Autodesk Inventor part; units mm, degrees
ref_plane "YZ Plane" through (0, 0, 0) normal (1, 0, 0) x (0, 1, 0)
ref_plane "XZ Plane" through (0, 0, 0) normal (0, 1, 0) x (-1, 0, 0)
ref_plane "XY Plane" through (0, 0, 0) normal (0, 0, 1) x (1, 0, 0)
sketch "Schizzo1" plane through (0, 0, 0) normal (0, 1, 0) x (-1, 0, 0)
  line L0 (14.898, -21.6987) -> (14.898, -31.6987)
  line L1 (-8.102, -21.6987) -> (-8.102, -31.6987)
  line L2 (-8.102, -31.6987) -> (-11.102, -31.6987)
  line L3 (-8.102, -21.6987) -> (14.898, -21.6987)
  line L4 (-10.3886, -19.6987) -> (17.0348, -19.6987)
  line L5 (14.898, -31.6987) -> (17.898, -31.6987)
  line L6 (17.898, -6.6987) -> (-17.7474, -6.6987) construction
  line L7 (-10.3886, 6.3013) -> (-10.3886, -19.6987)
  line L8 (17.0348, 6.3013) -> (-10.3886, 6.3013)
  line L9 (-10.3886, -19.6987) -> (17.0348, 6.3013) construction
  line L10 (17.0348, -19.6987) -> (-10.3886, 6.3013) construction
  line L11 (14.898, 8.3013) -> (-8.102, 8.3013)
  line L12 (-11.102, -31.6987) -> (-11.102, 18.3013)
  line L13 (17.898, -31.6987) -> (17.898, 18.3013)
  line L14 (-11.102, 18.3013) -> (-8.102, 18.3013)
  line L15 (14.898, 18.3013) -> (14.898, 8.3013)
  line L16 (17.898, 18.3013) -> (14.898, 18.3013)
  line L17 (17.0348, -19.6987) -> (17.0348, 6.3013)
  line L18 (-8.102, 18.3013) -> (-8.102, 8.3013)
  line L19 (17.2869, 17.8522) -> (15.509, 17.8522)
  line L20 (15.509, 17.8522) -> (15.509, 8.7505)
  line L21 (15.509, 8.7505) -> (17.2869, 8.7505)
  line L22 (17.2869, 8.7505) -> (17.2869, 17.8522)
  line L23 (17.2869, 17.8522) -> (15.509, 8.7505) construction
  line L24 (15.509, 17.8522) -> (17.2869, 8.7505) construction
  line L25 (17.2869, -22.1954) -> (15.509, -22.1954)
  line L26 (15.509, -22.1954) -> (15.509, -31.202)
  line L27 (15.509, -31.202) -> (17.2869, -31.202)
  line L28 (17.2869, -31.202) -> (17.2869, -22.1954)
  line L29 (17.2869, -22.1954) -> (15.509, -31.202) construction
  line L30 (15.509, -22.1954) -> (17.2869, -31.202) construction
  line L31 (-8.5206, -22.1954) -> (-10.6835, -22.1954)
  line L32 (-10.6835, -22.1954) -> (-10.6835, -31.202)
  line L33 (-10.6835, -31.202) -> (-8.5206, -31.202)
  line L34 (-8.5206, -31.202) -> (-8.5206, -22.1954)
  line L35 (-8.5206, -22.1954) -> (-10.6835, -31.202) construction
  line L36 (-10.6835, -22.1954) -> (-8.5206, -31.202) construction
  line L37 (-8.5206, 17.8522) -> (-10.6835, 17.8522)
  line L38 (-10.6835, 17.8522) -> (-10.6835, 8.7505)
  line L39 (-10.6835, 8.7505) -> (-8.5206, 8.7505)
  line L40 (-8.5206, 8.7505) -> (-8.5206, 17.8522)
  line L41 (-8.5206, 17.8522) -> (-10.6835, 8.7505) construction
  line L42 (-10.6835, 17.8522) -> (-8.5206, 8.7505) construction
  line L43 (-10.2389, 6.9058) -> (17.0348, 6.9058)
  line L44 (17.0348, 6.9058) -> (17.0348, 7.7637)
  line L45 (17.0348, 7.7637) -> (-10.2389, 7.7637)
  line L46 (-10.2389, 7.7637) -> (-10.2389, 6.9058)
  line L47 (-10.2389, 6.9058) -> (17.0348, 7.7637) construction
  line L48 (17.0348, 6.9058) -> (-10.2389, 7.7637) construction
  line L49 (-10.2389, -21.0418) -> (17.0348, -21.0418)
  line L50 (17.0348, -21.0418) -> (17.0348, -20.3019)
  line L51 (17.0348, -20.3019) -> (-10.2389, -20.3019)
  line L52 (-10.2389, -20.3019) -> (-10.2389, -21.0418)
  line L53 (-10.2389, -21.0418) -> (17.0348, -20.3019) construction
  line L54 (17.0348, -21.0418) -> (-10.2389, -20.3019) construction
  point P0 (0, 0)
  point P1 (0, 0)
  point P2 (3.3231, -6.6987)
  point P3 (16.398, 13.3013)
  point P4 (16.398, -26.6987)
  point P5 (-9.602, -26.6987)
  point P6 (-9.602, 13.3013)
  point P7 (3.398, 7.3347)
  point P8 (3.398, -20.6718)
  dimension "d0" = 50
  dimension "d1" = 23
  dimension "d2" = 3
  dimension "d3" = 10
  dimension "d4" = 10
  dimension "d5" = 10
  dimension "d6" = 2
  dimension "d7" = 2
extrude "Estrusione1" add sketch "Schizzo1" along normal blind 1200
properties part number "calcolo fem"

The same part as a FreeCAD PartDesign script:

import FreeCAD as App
import Part
import Sketcher
from FreeCAD import Vector


def add_polygon(sketch, points):
    """Adds a closed chain of lines whose ends are joined by coincident constraints."""
    first, n = sketch.GeometryCount, len(points)
    for a, b in zip(points, points[1:] + points[:1]):
        sketch.addGeometry(Part.LineSegment(App.Vector(*a, 0), App.Vector(*b, 0)), False)
    for i in range(n):
        sketch.addConstraint(Sketcher.Constraint("Coincident", first + i, 2, first + (i + 1) % n, 1))

doc = App.newDocument("Part")
body = doc.addObject("PartDesign::Body", "Body")

sketch1 = body.newObject("Sketcher::SketchObject", "Sketch")
sketch1.AttachmentSupport = (doc.getObject("XZ_Plane"), [""])
sketch1.MapMode = "FlatFace"
add_polygon(sketch1, [(8.1, -21.7), (-14.9, -21.7), (-14.9, -31.7), (-17.9, -31.7), (-17.9, 18.3), (-14.9, 18.3), (-14.9, 8.3), (8.1, 8.3), (8.1, 18.3), (11.1, 18.3), (11.1, -31.7), (8.1, -31.7)])
add_polygon(sketch1, [(10.7, -22.2), (8.5, -22.2), (8.5, -31.2), (10.7, -31.2)])
add_polygon(sketch1, [(-17, -21), (10.2, -21), (10.2, -20.3), (-17, -20.3)])
add_polygon(sketch1, [(-15.5, -22.2), (-17.3, -22.2), (-17.3, -31.2), (-15.5, -31.2)])
add_polygon(sketch1, [(-17, -19.7), (10.4, -19.7), (10.4, 6.3), (-17, 6.3)])
add_polygon(sketch1, [(10.7, 17.9), (8.5, 17.9), (8.5, 8.8), (10.7, 8.8)])
add_polygon(sketch1, [(-17, 6.9), (10.2, 6.9), (10.2, 7.8), (-17, 7.8)])
add_polygon(sketch1, [(-15.5, 17.9), (-17.3, 17.9), (-17.3, 8.8), (-15.5, 8.8)])
sketch1.addConstraint(Sketcher.Constraint("Horizontal", 0))
sketch1.addConstraint(Sketcher.Constraint("Vertical", 1))
sketch1.addConstraint(Sketcher.Constraint("Horizontal", 2))
sketch1.addConstraint(Sketcher.Constraint("Vertical", 3))
sketch1.addConstraint(Sketcher.Constraint("Horizontal", 4))
sketch1.addConstraint(Sketcher.Constraint("Vertical", 5))
sketch1.addConstraint(Sketcher.Constraint("Horizontal", 6))
sketch1.addConstraint(Sketcher.Constraint("Vertical", 7))
sketch1.addConstraint(Sketcher.Constraint("Horizontal", 8))
sketch1.addConstraint(Sketcher.Constraint("Vertical", 9))
sketch1.addConstraint(Sketcher.Constraint("Horizontal", 10))
sketch1.addConstraint(Sketcher.Constraint("Vertical", 11))
sketch1.addConstraint(Sketcher.Constraint("Horizontal", 12))
sketch1.addConstraint(Sketcher.Constraint("Vertical", 13))
sketch1.addConstraint(Sketcher.Constraint("Horizontal", 14))
sketch1.addConstraint(Sketcher.Constraint("Vertical", 15))
sketch1.addConstraint(Sketcher.Constraint("Horizontal", 16))
sketch1.addConstraint(Sketcher.Constraint("Vertical", 17))
sketch1.addConstraint(Sketcher.Constraint("Horizontal", 18))
sketch1.addConstraint(Sketcher.Constraint("Vertical", 19))
sketch1.addConstraint(Sketcher.Constraint("Horizontal", 20))
sketch1.addConstraint(Sketcher.Constraint("Vertical", 21))
sketch1.addConstraint(Sketcher.Constraint("Horizontal", 22))
sketch1.addConstraint(Sketcher.Constraint("Vertical", 23))
sketch1.addConstraint(Sketcher.Constraint("Horizontal", 24))
sketch1.addConstraint(Sketcher.Constraint("Vertical", 25))
sketch1.addConstraint(Sketcher.Constraint("Horizontal", 26))
sketch1.addConstraint(Sketcher.Constraint("Vertical", 27))
sketch1.addConstraint(Sketcher.Constraint("Horizontal", 28))
sketch1.addConstraint(Sketcher.Constraint("Vertical", 29))
sketch1.addConstraint(Sketcher.Constraint("Horizontal", 30))
sketch1.addConstraint(Sketcher.Constraint("Vertical", 31))
sketch1.addConstraint(Sketcher.Constraint("Horizontal", 32))
sketch1.addConstraint(Sketcher.Constraint("Vertical", 33))
sketch1.addConstraint(Sketcher.Constraint("Horizontal", 34))
sketch1.addConstraint(Sketcher.Constraint("Vertical", 35))
sketch1.addConstraint(Sketcher.Constraint("Horizontal", 36))
sketch1.addConstraint(Sketcher.Constraint("Vertical", 37))
sketch1.addConstraint(Sketcher.Constraint("Horizontal", 38))
sketch1.addConstraint(Sketcher.Constraint("Vertical", 39))
sketch1.addConstraint(Sketcher.Constraint("Horizontal", 4, 2, 7, 2))
sketch1.addConstraint(Sketcher.Constraint("Horizontal", 2, 2, 9, 2))
sketch1.addConstraint(Sketcher.Constraint("Horizontal", 15, 2, 20, 2))
sketch1.addConstraint(Sketcher.Constraint("Horizontal", 14, 2, 21, 2))
sketch1.addConstraint(Sketcher.Constraint("Horizontal", 31, 2, 36, 2))
sketch1.addConstraint(Sketcher.Constraint("Horizontal", 30, 2, 37, 2))
sketch1.addConstraint(Sketcher.Constraint("Vertical", 1, 2, 4, 2))
sketch1.addConstraint(Sketcher.Constraint("Vertical", 7, 2, 10, 2))
sketch1.addConstraint(Sketcher.Constraint("Vertical", 19, 2, 26, 2))
sketch1.addConstraint(Sketcher.Constraint("Vertical", 13, 2, 28, 2))
sketch1.addConstraint(Sketcher.Constraint("Vertical", 15, 2, 30, 2))
sketch1.addConstraint(Sketcher.Constraint("Vertical", 17, 2, 32, 2))
sketch1.addConstraint(Sketcher.Constraint("Vertical", 27, 2, 34, 2))
sketch1.addConstraint(Sketcher.Constraint("Vertical", 21, 2, 36, 2))
sketch1.addConstraint(Sketcher.Constraint("Vertical", 23, 2, 38, 2))
sketch1.addConstraint(Sketcher.Constraint("Equal", 4, 8))
sketch1.addConstraint(Sketcher.Constraint("Equal", 1, 5))
sketch1.addConstraint(Sketcher.Constraint("DistanceX", 0, 2, 0, 1, 23.0))
sketch1.addConstraint(Sketcher.Constraint("DistanceX", 2, 2, 2, 1, 3.0))
sketch1.addConstraint(Sketcher.Constraint("DistanceY", 1, 2, 1, 1, 10.0))
sketch1.addConstraint(Sketcher.Constraint("DistanceY", 3, 1, 3, 2, 50.0))
sketch1.addConstraint(Sketcher.Constraint("DistanceY", 11, 2, 24, 2, 2.0))
sketch1.addConstraint(Sketcher.Constraint("DistanceY", 25, 2, 6, 2, 2.0))
sketch1.addConstraint(Sketcher.Constraint("DistanceY", 17, 1, 17, 2, 0.74))
sketch1.addConstraint(Sketcher.Constraint("DistanceY", 14, 2, 17, 2, 10.9))
sketch1.addConstraint(Sketcher.Constraint("DistanceX", 12, 2, 12, 1, 2.163))
sketch1.addConstraint(Sketcher.Constraint("DistanceX", 20, 2, 20, 1, 1.778))
sketch1.addConstraint(Sketcher.Constraint("DistanceY", 33, 1, 33, 2, 0.858))
sketch1.addConstraint(Sketcher.Constraint("DistanceX", 16, 1, 16, 2, 27.2737))
sketch1.addConstraint(Sketcher.Constraint("DistanceX", 24, 1, 24, 2, 27.4234))
sketch1.addConstraint(Sketcher.Constraint("DistanceY", 13, 2, 13, 1, 9.0066))
sketch1.addConstraint(Sketcher.Constraint("DistanceY", 29, 2, 29, 1, 9.1017))
sketch1.addConstraint(Sketcher.Constraint("DistanceX", 0, 2, -1, 1, 14.898))
sketch1.addConstraint(Sketcher.Constraint("DistanceY", 13, 2, -1, 1, 31.202))
sketch1.addConstraint(Sketcher.Constraint("DistanceX", -1, 1, 16, 2, 10.239))
sketch1.addConstraint(Sketcher.Constraint("DistanceX", 20, 2, -1, 1, 17.287))
sketch1.addConstraint(Sketcher.Constraint("DistanceY", 11, 2, 16, 2, 0.657))
sketch1.addConstraint(Sketcher.Constraint("DistanceX", 24, 2, 15, 2, 0.295))
sketch1.addConstraint(Sketcher.Constraint("DistanceY", 28, 2, 7, 2, 0.449))
sketch1.addConstraint(Sketcher.Constraint("DistanceY", -1, 1, 32, 2, 6.9058))
pad1 = body.newObject("PartDesign::Pad", "Pad")
pad1.Profile = sketch1
pad1.Length = 1200
pad1.Reversed = True

doc.recompute()
